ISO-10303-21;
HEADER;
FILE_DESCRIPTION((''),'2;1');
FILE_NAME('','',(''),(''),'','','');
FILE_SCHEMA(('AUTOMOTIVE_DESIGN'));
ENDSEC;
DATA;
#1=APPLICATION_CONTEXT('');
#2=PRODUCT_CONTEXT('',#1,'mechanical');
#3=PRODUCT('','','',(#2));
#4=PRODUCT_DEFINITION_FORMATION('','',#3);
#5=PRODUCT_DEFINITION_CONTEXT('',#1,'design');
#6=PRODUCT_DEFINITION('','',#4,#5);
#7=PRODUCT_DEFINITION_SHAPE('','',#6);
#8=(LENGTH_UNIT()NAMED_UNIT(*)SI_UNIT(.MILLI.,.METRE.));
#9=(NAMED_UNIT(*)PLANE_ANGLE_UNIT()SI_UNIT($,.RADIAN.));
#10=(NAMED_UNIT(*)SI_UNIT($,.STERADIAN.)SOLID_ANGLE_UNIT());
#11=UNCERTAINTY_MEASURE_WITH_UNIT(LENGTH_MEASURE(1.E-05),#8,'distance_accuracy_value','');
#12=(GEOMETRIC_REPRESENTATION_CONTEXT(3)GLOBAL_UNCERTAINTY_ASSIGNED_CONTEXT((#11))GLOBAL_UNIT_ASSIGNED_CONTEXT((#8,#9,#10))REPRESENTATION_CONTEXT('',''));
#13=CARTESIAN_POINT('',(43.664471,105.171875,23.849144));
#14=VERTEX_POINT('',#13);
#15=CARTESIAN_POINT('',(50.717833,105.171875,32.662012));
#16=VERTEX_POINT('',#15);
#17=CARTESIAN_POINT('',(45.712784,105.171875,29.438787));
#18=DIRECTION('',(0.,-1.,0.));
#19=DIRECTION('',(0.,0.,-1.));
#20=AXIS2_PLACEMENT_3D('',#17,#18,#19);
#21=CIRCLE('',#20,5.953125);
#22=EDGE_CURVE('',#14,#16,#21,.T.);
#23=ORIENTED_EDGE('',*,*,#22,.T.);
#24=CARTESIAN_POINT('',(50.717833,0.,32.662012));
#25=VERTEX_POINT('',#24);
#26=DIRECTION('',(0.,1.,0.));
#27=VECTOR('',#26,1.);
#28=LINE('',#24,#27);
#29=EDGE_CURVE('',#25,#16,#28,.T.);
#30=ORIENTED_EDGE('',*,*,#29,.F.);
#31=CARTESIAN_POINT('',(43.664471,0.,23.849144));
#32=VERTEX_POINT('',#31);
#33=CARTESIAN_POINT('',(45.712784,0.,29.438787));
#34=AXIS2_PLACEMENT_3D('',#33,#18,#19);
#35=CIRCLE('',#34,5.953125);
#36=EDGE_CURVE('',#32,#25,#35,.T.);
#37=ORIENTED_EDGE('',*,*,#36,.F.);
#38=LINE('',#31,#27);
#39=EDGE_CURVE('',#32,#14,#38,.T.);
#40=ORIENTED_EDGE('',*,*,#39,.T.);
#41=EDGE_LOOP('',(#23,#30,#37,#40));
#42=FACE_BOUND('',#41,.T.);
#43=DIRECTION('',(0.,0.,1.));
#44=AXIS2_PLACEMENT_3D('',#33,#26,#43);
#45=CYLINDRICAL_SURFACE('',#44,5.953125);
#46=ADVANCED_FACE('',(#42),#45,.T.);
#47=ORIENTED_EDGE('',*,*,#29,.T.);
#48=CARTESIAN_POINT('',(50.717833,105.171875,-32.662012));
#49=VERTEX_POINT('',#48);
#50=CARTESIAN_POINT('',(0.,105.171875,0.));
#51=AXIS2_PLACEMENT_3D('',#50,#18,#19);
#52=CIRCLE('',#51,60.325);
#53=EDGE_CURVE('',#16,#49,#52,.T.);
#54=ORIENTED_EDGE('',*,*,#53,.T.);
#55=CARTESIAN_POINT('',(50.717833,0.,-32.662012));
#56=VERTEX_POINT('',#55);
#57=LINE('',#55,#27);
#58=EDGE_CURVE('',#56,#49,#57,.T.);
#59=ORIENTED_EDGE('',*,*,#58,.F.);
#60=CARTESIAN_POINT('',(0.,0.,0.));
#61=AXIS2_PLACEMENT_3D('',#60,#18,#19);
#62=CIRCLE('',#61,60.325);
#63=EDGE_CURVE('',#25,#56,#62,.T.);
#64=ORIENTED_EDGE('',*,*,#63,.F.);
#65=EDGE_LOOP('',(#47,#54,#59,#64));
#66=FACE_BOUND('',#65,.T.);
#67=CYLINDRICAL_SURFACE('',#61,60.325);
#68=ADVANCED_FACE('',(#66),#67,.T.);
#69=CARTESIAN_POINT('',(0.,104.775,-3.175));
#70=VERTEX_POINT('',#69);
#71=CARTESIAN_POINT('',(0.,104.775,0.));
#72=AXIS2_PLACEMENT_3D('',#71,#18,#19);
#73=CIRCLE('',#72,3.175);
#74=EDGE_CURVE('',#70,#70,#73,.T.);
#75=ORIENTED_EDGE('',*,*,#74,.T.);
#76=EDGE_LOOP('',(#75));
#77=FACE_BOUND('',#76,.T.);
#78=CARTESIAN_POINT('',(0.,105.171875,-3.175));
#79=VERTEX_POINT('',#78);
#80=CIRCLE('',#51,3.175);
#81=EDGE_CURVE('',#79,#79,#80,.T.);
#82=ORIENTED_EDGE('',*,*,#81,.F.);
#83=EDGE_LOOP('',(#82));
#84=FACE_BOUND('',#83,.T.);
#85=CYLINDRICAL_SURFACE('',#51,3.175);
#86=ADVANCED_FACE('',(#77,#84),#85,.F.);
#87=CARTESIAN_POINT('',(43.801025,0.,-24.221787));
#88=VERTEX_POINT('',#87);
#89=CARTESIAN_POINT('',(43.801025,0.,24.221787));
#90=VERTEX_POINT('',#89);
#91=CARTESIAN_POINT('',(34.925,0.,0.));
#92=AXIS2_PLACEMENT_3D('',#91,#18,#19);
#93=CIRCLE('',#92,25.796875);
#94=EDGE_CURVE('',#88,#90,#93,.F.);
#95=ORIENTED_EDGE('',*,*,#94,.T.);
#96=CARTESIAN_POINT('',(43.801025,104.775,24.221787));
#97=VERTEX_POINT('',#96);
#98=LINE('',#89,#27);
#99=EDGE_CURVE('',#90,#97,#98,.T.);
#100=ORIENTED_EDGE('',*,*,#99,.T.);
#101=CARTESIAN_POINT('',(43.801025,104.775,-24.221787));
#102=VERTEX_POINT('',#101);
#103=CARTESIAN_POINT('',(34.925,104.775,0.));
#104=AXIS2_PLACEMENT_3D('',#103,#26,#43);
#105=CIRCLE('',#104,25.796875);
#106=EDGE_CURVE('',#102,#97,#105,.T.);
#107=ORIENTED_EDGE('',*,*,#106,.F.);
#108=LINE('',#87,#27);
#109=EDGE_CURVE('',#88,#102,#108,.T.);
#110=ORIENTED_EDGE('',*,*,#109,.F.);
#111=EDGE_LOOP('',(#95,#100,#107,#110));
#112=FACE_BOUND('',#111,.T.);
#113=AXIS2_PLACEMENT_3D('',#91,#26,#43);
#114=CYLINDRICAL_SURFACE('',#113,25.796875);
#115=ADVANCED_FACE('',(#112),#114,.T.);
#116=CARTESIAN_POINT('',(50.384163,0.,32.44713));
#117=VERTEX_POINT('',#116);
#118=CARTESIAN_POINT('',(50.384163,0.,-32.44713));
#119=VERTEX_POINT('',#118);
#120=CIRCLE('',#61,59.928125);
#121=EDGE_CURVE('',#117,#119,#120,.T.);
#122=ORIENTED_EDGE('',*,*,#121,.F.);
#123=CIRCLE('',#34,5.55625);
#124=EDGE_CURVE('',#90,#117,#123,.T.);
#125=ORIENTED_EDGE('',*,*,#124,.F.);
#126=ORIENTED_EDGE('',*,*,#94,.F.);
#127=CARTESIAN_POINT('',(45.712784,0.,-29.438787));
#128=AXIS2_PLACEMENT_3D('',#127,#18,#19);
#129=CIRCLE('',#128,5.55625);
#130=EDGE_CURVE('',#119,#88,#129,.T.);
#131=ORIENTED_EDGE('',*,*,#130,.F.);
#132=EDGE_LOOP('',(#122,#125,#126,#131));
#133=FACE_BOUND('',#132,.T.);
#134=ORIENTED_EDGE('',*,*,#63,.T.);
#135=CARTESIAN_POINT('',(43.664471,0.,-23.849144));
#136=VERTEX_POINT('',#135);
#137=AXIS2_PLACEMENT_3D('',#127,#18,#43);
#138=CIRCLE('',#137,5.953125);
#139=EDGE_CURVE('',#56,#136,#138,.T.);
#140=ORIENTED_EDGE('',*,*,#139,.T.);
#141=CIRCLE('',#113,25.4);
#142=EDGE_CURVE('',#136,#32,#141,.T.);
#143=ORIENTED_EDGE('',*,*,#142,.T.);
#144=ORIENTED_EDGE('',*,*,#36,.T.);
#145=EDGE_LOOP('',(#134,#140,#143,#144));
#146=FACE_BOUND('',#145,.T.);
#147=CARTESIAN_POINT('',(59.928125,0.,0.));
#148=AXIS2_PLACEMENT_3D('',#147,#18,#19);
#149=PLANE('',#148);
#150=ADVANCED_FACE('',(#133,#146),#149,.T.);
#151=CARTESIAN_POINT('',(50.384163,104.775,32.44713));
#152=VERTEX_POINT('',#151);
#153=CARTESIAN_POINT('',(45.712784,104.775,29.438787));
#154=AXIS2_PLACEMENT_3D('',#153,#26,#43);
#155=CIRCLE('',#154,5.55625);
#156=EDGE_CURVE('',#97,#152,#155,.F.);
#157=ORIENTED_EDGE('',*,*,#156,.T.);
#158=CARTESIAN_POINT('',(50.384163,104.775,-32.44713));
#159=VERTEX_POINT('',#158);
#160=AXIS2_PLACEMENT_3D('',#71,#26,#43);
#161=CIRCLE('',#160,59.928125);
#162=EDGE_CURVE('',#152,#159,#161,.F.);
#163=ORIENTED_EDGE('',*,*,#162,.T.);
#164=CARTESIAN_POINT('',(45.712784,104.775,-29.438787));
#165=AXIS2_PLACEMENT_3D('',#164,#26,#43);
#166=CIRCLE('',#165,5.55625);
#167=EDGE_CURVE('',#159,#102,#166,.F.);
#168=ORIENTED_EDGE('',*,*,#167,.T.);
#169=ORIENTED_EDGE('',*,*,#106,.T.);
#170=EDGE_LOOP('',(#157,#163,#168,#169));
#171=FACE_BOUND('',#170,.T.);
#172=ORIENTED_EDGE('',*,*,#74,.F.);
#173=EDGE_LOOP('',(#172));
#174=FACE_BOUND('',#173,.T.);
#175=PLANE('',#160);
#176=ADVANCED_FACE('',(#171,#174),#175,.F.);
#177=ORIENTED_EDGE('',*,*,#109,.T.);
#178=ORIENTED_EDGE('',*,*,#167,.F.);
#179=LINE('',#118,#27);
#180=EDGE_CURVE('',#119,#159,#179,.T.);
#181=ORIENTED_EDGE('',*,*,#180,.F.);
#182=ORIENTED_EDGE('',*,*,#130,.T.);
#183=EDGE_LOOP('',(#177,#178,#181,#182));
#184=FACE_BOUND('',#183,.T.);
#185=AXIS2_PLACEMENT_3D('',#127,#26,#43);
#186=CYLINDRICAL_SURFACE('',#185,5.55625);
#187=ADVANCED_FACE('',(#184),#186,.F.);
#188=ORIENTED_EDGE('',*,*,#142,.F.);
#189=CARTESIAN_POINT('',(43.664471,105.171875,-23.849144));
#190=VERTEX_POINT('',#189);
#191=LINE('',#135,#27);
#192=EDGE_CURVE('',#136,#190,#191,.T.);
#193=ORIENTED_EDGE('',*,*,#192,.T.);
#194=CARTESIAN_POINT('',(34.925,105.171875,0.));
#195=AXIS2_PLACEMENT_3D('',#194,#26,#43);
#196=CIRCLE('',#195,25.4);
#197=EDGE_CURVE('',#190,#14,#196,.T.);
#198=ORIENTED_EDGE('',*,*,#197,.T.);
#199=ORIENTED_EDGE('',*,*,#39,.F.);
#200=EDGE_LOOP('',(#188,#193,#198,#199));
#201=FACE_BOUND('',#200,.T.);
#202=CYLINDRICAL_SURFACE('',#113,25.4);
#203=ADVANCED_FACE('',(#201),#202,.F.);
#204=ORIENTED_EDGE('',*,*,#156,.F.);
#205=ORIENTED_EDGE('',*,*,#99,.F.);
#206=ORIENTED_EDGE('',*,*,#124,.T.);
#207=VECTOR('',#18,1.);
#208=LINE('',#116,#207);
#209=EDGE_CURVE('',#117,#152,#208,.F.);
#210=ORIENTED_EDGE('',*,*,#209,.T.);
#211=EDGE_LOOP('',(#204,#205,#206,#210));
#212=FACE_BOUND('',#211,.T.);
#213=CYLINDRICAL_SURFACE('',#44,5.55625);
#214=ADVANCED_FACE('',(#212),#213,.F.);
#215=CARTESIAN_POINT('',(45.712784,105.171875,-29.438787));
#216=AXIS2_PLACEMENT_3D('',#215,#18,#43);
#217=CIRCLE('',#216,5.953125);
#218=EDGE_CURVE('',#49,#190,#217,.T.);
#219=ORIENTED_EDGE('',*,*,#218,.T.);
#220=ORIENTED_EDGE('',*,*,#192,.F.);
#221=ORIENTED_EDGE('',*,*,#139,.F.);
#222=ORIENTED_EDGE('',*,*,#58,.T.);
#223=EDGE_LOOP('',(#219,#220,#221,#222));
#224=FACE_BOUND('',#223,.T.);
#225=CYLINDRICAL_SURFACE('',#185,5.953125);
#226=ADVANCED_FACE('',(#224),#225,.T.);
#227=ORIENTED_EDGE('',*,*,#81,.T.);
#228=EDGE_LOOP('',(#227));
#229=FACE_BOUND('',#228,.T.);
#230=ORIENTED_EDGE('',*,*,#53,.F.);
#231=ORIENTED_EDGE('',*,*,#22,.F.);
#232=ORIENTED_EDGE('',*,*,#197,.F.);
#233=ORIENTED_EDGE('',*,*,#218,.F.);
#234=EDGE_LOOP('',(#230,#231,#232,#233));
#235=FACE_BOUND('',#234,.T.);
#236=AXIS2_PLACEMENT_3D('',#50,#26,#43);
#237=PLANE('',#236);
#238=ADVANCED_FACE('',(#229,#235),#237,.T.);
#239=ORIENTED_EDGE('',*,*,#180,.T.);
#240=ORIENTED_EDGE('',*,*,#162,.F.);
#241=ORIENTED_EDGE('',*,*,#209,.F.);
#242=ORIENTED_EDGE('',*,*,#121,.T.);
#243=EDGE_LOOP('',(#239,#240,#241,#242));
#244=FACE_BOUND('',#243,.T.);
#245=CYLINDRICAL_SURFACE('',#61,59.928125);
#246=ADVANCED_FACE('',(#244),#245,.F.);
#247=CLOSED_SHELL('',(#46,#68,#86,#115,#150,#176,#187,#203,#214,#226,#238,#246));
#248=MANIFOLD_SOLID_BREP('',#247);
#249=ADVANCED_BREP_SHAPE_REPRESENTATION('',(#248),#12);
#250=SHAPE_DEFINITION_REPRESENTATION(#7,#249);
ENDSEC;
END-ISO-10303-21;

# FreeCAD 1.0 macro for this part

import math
import FreeCAD as App
import Part
import Sketcher

V = App.Vector
Q = App.Units.Quantity


def faces_at(feature, points):
    """Names of the faces that lie closest to the given points."""
    faces = feature.Shape.Faces
    near = lambda p: min(range(len(faces)), key=lambda i: faces[i].distToShape(Part.Vertex(*p))[0])
    return sorted({f"Face{near(p) + 1}" for p in points})

doc = App.newDocument("Part")
body = doc.addObject("PartDesign::Body", "Body")

# Sketch on XY plane
sketch1 = body.newObject("Sketcher::SketchObject", "Sketch")
sketch1.AttachmentSupport = (doc.getObject("XY_Plane"), [""])
sketch1.MapMode = "FlatFace"
sketch1.addGeometry(Part.LineSegment(V(60, 105, 0), V(0, 105, 0)), False)
sketch1.addGeometry(Part.LineSegment(V(0, 105, 0), V(0, 0, 0)), False)
sketch1.addGeometry(Part.LineSegment(V(0, 0, 0), V(60, 0, 0)), False)
sketch1.addGeometry(Part.LineSegment(V(60, 0, 0), V(60, 105, 0)), False)
sketch1.addConstraint(Sketcher.Constraint("Coincident", 0, 2, 1, 1))
sketch1.addConstraint(Sketcher.Constraint("Coincident", 1, 2, 2, 1))
sketch1.addConstraint(Sketcher.Constraint("Coincident", 2, 2, 3, 1))
sketch1.addConstraint(Sketcher.Constraint("Coincident", 3, 2, 0, 1))
sketch1.addConstraint(Sketcher.Constraint("Horizontal", 0))
sketch1.addConstraint(Sketcher.Constraint("Vertical", 1))
sketch1.addConstraint(Sketcher.Constraint("Horizontal", 2))
sketch1.addConstraint(Sketcher.Constraint("Vertical", 3))
sketch1.addConstraint(Sketcher.Constraint("Coincident", 1, 2, -1, 1))
sketch1.addConstraint(Sketcher.Constraint("DistanceX", 0, 2, 0, 1, Q("2.375 in")))
sketch1.addConstraint(Sketcher.Constraint("DistanceY", 1, 2, 1, 1, Q("4.140625 in")))
revolution = body.newObject("PartDesign::Revolution", "Revolution")
revolution.Profile = sketch1
revolution.ReferenceAxis = (sketch1, ["V_Axis"])
revolution.Angle = 360

# Sketch on XZ plane
sketch2 = body.newObject("Sketcher::SketchObject", "Sketch001")
sketch2.AttachmentSupport = (doc.getObject("XZ_Plane"), [""])
sketch2.MapMode = "FlatFace"
sketch2.AttachmentOffset = App.Placement(V(0, 0, -4.140625 * 25.4), App.Rotation())
sketch2.addGeometry(Part.ArcOfCircle(Part.Circle(V(35, 0, 0), V(0, 0, 1), 25), math.radians(70), math.radians(290)), False)
sketch2.addGeometry(Part.ArcOfCircle(Part.Circle(V(46, 29, 0), V(0, 0, 1), 6), math.radians(-110), math.radians(33)), False)
sketch2.addGeometry(Part.ArcOfCircle(Part.Circle(V(0, 0, 0), V(0, 0, 1), 60), math.radians(-33), math.radians(33)), False)
sketch2.addGeometry(Part.ArcOfCircle(Part.Circle(V(46, -29, 0), V(0, 0, 1), 6), math.radians(-33), math.radians(110)), False)
sketch2.addConstraint(Sketcher.Constraint("Tangent", 0, 1, 1, 1))
sketch2.addConstraint(Sketcher.Constraint("Tangent", 1, 2, 2, 2))
sketch2.addConstraint(Sketcher.Constraint("Tangent", 2, 1, 3, 1))
sketch2.addConstraint(Sketcher.Constraint("Tangent", 3, 2, 0, 2))
sketch2.addConstraint(Sketcher.Constraint("Coincident", 2, 3, -1, 1))
sketch2.addConstraint(Sketcher.Constraint("Equal", 1, 3))
sketch2.addConstraint(Sketcher.Constraint("PointOnObject", 0, 3, -1))
sketch2.addConstraint(Sketcher.Constraint("Radius", 0, Q("1 in")))
sketch2.addConstraint(Sketcher.Constraint("Radius", 1, Q("0.234375 in")))
sketch2.addConstraint(Sketcher.Constraint("Radius", 2, Q("2.375 in")))
sketch2.addConstraint(Sketcher.Constraint("DistanceX", -1, 1, 0, 3, Q("1.375 in")))
pocket1 = body.newObject("PartDesign::Pocket", "Pocket")
pocket1.Profile = sketch2
pocket1.Type = "ThroughAll"
pocket1.Reversed = True
doc.recompute()

thickness = body.newObject("PartDesign::Thickness", "Thickness")
thickness.Base = (pocket1, faces_at(pocket1, [(-4.33, 0, 0)]))
thickness.Value = Q("0.015625 in")
thickness.Reversed = True
thickness.Join = "Intersection"

# Sketch on XZ plane
sketch3 = body.newObject("Sketcher::SketchObject", "Sketch002")
sketch3.AttachmentSupport = (doc.getObject("XZ_Plane"), [""])
sketch3.MapMode = "FlatFace"
sketch3.AttachmentOffset = App.Placement(V(0, 0, -4.125 * 25.4), App.Rotation())
sketch3.addGeometry(Part.Circle(V(0, 0, 0), V(0, 0, 1), 3.2), False)
sketch3.addConstraint(Sketcher.Constraint("Coincident", 0, 3, -1, 1))
sketch3.addConstraint(Sketcher.Constraint("Diameter", 0, Q("0.25 in")))
pocket2 = body.newObject("PartDesign::Pocket", "Pocket001")
pocket2.Profile = sketch3
pocket2.Type = "ThroughAll"

doc.recompute()
